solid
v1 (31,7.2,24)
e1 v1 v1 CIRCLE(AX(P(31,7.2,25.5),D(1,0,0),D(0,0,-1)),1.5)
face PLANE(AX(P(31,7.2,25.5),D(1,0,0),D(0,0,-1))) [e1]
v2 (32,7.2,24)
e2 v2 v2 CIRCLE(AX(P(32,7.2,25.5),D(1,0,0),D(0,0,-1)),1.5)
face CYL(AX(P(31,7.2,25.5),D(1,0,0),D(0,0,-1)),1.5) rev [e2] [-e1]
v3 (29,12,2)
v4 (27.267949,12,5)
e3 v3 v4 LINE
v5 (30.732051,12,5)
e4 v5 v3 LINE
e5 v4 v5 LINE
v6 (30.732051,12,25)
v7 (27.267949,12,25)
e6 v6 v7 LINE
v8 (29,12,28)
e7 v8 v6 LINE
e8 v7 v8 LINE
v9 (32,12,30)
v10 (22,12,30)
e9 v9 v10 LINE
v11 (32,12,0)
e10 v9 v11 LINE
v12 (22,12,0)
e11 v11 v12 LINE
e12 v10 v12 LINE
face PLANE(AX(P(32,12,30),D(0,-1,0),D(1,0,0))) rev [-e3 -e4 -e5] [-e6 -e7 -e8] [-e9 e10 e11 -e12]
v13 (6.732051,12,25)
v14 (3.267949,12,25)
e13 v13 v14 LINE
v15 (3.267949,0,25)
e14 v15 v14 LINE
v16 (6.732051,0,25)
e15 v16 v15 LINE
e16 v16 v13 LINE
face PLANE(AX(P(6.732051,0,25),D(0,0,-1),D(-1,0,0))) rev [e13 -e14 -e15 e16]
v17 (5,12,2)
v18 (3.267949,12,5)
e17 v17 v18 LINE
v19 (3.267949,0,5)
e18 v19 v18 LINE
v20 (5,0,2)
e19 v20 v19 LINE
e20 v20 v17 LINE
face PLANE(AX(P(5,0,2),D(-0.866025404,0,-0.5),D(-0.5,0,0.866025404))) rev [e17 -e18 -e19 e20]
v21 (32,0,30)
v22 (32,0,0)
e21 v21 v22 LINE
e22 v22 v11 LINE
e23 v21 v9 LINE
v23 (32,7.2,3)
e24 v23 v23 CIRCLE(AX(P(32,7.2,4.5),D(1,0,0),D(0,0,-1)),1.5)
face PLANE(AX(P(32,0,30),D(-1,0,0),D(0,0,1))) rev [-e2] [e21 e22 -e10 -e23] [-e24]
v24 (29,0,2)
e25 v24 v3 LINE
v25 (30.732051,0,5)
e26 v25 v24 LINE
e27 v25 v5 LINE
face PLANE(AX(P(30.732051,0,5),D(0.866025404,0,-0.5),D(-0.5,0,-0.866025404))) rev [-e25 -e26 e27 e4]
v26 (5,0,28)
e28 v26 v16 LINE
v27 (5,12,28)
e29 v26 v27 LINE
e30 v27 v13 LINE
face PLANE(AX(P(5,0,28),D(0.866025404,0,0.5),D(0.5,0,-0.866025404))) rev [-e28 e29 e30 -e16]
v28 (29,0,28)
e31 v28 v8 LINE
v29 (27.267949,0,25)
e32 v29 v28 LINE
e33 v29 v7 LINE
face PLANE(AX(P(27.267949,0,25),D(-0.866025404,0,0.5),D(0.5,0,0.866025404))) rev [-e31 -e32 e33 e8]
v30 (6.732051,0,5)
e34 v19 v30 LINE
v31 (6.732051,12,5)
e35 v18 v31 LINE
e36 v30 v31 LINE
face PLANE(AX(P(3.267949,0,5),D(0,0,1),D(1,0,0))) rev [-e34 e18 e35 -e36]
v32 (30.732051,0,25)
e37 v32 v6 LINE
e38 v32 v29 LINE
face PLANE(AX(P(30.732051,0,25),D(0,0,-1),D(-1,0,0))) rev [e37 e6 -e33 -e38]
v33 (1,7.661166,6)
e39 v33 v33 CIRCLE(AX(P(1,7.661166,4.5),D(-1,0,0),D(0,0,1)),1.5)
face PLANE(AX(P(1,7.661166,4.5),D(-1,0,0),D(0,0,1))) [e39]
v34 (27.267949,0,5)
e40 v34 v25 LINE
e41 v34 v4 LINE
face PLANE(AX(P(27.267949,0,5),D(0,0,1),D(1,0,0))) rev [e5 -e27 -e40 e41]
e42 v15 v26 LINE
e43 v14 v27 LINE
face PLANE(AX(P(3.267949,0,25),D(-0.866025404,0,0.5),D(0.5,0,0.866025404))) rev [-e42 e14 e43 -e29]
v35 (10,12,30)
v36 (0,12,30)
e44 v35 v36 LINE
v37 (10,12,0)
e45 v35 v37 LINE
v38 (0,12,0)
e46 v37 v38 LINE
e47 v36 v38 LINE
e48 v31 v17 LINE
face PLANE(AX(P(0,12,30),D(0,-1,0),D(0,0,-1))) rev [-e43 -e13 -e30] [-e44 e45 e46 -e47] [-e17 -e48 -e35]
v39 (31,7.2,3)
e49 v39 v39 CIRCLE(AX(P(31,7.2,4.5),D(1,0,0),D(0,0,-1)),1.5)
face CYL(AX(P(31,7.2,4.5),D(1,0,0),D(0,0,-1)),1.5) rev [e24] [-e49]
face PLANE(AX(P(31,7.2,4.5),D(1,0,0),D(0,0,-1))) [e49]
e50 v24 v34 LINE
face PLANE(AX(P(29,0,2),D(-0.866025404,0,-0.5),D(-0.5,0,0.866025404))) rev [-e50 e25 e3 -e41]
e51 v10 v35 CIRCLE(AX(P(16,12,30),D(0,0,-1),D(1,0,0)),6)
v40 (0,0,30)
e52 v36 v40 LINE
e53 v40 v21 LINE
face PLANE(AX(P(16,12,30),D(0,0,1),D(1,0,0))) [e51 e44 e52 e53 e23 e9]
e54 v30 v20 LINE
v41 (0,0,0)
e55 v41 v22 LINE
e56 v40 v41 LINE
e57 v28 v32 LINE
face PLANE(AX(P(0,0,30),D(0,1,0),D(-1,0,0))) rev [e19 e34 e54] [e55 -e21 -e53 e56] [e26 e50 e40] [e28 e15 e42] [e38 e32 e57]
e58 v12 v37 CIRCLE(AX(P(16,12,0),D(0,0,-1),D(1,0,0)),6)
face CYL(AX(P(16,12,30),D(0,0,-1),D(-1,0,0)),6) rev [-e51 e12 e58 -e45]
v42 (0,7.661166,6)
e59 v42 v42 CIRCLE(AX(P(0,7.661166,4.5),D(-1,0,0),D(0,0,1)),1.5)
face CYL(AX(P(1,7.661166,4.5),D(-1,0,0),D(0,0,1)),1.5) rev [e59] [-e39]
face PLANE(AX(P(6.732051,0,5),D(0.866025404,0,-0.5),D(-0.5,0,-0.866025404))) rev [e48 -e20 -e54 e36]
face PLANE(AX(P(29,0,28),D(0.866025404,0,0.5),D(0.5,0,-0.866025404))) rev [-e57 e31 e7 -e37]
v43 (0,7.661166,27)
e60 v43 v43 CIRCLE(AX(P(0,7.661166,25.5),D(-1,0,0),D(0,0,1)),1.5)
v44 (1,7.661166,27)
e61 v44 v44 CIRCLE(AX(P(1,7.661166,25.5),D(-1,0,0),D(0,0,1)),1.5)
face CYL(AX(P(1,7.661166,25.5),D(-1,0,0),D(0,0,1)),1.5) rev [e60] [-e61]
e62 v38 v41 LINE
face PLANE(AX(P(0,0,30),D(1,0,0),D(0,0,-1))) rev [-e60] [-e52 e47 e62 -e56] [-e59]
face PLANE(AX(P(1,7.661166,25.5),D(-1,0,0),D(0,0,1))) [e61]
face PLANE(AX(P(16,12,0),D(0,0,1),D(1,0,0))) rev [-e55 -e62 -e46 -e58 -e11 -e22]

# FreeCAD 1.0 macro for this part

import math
import FreeCAD as App
import Part
import Sketcher

V = App.Vector
Q = App.Units.Quantity

doc = App.newDocument("Part")
body = doc.addObject("PartDesign::Body", "Body")

# Sketch on XY plane
sketch1 = body.newObject("Sketcher::SketchObject", "Sketch")
sketch1.AttachmentSupport = (doc.getObject("XY_Plane"), [""])
sketch1.MapMode = "FlatFace"
sketch1.addGeometry([
    Part.LineSegment(V(0, 12, 0), V(0, 0, 0)),  # 0
    Part.LineSegment(V(0, 0, 0), V(32, 0, 0)),  # 1
    Part.LineSegment(V(32, 0, 0), V(32, 12, 0)),  # 2
    Part.LineSegment(V(32, 12, 0), V(22, 12, 0)),  # 3
    Part.ArcOfCircle(Part.Circle(V(16, 12, 0), V(0, 0, 1), 6), math.radians(180), math.radians(360)),  # 4
    Part.LineSegment(V(10, 12, 0), V(0, 12, 0)),  # 5
], False)
sketch1.addConstraint([
    Sketcher.Constraint("Coincident", 0, 2, 1, 1),
    Sketcher.Constraint("Coincident", 1, 2, 2, 1),
    Sketcher.Constraint("Coincident", 2, 2, 3, 1),
    Sketcher.Constraint("Coincident", 3, 2, 4, 2),
    Sketcher.Constraint("Coincident", 4, 1, 5, 1),
    Sketcher.Constraint("Coincident", 5, 2, 0, 1),
    Sketcher.Constraint("Vertical", 0),
    Sketcher.Constraint("Horizontal", 1),
    Sketcher.Constraint("Vertical", 2),
    Sketcher.Constraint("Horizontal", 3),
    Sketcher.Constraint("Horizontal", 5),
    Sketcher.Constraint("Coincident", 0, 2, -1, 1),
    Sketcher.Constraint("Horizontal", 4, 3, 2, 2),
    Sketcher.Constraint("Horizontal", 3, 2, 4, 1),
    Sketcher.Constraint("Equal", 3, 5),
    Sketcher.Constraint("Radius", 4, 6.0),
    Sketcher.Constraint("DistanceX", 1, 1, 1, 2, 32.0),
    Sketcher.Constraint("DistanceY", 0, 2, 0, 1, 12.0),
])
pad1 = body.newObject("PartDesign::Pad", "Pad")
pad1.Profile = sketch1
pad1.Length = 30

# Sketch on XZ plane
sketch2 = body.newObject("Sketcher::SketchObject", "Sketch001")
sketch2.AttachmentSupport = (doc.getObject("XZ_Plane"), [""])
sketch2.MapMode = "FlatFace"
sketch2.AttachmentOffset = App.Placement(V(0, 0, -12), App.Rotation())
sketch2.addGeometry([
    Part.LineSegment(V(5, 2, 0), V(3.3, 5, 0)),  # 0
    Part.LineSegment(V(3.3, 5, 0), V(6.7, 5, 0)),  # 1
    Part.LineSegment(V(6.7, 5, 0), V(5, 2, 0)),  # 2
    Part.LineSegment(V(5, 28, 0), V(6.7, 25, 0)),  # 3
    Part.LineSegment(V(6.7, 25, 0), V(3.3, 25, 0)),  # 4
    Part.LineSegment(V(3.3, 25, 0), V(5, 28, 0)),  # 5
    Part.LineSegment(V(29, 28, 0), V(30.7, 25, 0)),  # 6
    Part.LineSegment(V(30.7, 25, 0), V(27.3, 25, 0)),  # 7
    Part.LineSegment(V(27.3, 25, 0), V(29, 28, 0)),  # 8
    Part.LineSegment(V(29, 2, 0), V(27.3, 5, 0)),  # 9
    Part.LineSegment(V(27.3, 5, 0), V(30.7, 5, 0)),  # 10
    Part.LineSegment(V(30.7, 5, 0), V(29, 2, 0)),  # 11
], False)
sketch2.addConstraint([
    Sketcher.Constraint("Coincident", 0, 2, 1, 1),
    Sketcher.Constraint("Coincident", 1, 2, 2, 1),
    Sketcher.Constraint("Coincident", 2, 2, 0, 1),
    Sketcher.Constraint("Coincident", 3, 2, 4, 1),
    Sketcher.Constraint("Coincident", 4, 2, 5, 1),
    Sketcher.Constraint("Coincident", 5, 2, 3, 1),
    Sketcher.Constraint("Coincident", 6, 2, 7, 1),
    Sketcher.Constraint("Coincident", 7, 2, 8, 1),
    Sketcher.Constraint("Coincident", 8, 2, 6, 1),
    Sketcher.Constraint("Coincident", 9, 2, 10, 1),
    Sketcher.Constraint("Coincident", 10, 2, 11, 1),
    Sketcher.Constraint("Coincident", 11, 2, 9, 1),
    Sketcher.Constraint("Horizontal", 1),
    Sketcher.Constraint("Horizontal", 4),
    Sketcher.Constraint("Horizontal", 7),
    Sketcher.Constraint("Horizontal", 10),
    Sketcher.Constraint("Parallel", 0, 3),
    Sketcher.Constraint("Parallel", 2, 5),
    Sketcher.Constraint("Parallel", 3, 6),
    Sketcher.Constraint("Parallel", 5, 8),
    Sketcher.Constraint("Parallel", 6, 9),
    Sketcher.Constraint("Parallel", 8, 11),
    Sketcher.Constraint("Horizontal", 4, 2, 6, 2),
    Sketcher.Constraint("Horizontal", 5, 2, 8, 2),
    Sketcher.Constraint("Horizontal", 1, 2, 9, 2),
    Sketcher.Constraint("Horizontal", 2, 2, 11, 2),
    Sketcher.Constraint("Vertical", 1, 2, 3, 2),
    Sketcher.Constraint("Vertical", 0, 2, 4, 2),
    Sketcher.Constraint("Vertical", 2, 2, 5, 2),
    Sketcher.Constraint("Vertical", 7, 2, 9, 2),
    Sketcher.Constraint("Angle", 0, Q("120 deg")),
    Sketcher.Constraint("DistanceY", -1, 1, 0, 2, 5.0),
    Sketcher.Constraint("DistanceX", -1, 1, 2, 2, 5.0),
    Sketcher.Constraint("DistanceY", -1, 1, 2, 2, 2.0),
    Sketcher.Constraint("DistanceY", -1, 1, 3, 2, 25.0),
    Sketcher.Constraint("DistanceX", -1, 1, 8, 2, 29.0),
])
pocket1 = body.newObject("PartDesign::Pocket", "Pocket")
pocket1.Profile = sketch2
pocket1.Type = "ThroughAll"
pocket1.Reversed = True

# Sketch on YZ plane
sketch3 = body.newObject("Sketcher::SketchObject", "Sketch002")
sketch3.AttachmentSupport = (doc.getObject("YZ_Plane"), [""])
sketch3.MapMode = "FlatFace"
sketch3.AttachmentOffset = App.Placement(V(0, 0, 32), App.Rotation())
sketch3.addGeometry([
    Part.Circle(V(7.2, 25.5, 0), V(0, 0, 1), 1.5),
    Part.Circle(V(7.2, 4.5, 0), V(0, 0, 1), 1.5),
], False)
sketch3.addConstraint([
    Sketcher.Constraint("Equal", 0, 1),
    Sketcher.Constraint("Vertical", 0, 3, 1, 3),
    Sketcher.Constraint("Diameter", 0, 3.0),
    Sketcher.Constraint("DistanceY", 1, 3, 0, 3, 21.0),
    Sketcher.Constraint("DistanceX", -1, 1, 0, 3, 7.2),
    Sketcher.Constraint("DistanceY", -1, 1, 0, 3, 25.5),
])
pocket2 = body.newObject("PartDesign::Pocket", "Pocket001")
pocket2.Profile = sketch3
pocket2.Length = 1

# Sketch on YZ plane
sketch4 = body.newObject("Sketcher::SketchObject", "Sketch003")
sketch4.AttachmentSupport = (doc.getObject("YZ_Plane"), [""])
sketch4.MapMode = "FlatFace"
sketch4.addGeometry([
    Part.Circle(V(7.7, 4.5, 0), V(0, 0, 1), 1.5),
    Part.Circle(V(7.7, 25.5, 0), V(0, 0, 1), 1.5),
], False)
sketch4.addConstraint([
    Sketcher.Constraint("Equal", 0, 1),
    Sketcher.Constraint("Vertical", 0, 3, 1, 3),
    Sketcher.Constraint("Diameter", 0, 3.0),
    Sketcher.Constraint("DistanceY", 0, 3, 1, 3, 21.0),
    Sketcher.Constraint("DistanceY", -1, 1, 0, 3, 4.5),
    Sketcher.Constraint("DistanceX", -1, 1, 0, 3, 7.661166),
])
pocket3 = body.newObject("PartDesign::Pocket", "Pocket002")
pocket3.Profile = sketch4
pocket3.Length = 1
pocket3.Reversed = True

doc.recompute()
